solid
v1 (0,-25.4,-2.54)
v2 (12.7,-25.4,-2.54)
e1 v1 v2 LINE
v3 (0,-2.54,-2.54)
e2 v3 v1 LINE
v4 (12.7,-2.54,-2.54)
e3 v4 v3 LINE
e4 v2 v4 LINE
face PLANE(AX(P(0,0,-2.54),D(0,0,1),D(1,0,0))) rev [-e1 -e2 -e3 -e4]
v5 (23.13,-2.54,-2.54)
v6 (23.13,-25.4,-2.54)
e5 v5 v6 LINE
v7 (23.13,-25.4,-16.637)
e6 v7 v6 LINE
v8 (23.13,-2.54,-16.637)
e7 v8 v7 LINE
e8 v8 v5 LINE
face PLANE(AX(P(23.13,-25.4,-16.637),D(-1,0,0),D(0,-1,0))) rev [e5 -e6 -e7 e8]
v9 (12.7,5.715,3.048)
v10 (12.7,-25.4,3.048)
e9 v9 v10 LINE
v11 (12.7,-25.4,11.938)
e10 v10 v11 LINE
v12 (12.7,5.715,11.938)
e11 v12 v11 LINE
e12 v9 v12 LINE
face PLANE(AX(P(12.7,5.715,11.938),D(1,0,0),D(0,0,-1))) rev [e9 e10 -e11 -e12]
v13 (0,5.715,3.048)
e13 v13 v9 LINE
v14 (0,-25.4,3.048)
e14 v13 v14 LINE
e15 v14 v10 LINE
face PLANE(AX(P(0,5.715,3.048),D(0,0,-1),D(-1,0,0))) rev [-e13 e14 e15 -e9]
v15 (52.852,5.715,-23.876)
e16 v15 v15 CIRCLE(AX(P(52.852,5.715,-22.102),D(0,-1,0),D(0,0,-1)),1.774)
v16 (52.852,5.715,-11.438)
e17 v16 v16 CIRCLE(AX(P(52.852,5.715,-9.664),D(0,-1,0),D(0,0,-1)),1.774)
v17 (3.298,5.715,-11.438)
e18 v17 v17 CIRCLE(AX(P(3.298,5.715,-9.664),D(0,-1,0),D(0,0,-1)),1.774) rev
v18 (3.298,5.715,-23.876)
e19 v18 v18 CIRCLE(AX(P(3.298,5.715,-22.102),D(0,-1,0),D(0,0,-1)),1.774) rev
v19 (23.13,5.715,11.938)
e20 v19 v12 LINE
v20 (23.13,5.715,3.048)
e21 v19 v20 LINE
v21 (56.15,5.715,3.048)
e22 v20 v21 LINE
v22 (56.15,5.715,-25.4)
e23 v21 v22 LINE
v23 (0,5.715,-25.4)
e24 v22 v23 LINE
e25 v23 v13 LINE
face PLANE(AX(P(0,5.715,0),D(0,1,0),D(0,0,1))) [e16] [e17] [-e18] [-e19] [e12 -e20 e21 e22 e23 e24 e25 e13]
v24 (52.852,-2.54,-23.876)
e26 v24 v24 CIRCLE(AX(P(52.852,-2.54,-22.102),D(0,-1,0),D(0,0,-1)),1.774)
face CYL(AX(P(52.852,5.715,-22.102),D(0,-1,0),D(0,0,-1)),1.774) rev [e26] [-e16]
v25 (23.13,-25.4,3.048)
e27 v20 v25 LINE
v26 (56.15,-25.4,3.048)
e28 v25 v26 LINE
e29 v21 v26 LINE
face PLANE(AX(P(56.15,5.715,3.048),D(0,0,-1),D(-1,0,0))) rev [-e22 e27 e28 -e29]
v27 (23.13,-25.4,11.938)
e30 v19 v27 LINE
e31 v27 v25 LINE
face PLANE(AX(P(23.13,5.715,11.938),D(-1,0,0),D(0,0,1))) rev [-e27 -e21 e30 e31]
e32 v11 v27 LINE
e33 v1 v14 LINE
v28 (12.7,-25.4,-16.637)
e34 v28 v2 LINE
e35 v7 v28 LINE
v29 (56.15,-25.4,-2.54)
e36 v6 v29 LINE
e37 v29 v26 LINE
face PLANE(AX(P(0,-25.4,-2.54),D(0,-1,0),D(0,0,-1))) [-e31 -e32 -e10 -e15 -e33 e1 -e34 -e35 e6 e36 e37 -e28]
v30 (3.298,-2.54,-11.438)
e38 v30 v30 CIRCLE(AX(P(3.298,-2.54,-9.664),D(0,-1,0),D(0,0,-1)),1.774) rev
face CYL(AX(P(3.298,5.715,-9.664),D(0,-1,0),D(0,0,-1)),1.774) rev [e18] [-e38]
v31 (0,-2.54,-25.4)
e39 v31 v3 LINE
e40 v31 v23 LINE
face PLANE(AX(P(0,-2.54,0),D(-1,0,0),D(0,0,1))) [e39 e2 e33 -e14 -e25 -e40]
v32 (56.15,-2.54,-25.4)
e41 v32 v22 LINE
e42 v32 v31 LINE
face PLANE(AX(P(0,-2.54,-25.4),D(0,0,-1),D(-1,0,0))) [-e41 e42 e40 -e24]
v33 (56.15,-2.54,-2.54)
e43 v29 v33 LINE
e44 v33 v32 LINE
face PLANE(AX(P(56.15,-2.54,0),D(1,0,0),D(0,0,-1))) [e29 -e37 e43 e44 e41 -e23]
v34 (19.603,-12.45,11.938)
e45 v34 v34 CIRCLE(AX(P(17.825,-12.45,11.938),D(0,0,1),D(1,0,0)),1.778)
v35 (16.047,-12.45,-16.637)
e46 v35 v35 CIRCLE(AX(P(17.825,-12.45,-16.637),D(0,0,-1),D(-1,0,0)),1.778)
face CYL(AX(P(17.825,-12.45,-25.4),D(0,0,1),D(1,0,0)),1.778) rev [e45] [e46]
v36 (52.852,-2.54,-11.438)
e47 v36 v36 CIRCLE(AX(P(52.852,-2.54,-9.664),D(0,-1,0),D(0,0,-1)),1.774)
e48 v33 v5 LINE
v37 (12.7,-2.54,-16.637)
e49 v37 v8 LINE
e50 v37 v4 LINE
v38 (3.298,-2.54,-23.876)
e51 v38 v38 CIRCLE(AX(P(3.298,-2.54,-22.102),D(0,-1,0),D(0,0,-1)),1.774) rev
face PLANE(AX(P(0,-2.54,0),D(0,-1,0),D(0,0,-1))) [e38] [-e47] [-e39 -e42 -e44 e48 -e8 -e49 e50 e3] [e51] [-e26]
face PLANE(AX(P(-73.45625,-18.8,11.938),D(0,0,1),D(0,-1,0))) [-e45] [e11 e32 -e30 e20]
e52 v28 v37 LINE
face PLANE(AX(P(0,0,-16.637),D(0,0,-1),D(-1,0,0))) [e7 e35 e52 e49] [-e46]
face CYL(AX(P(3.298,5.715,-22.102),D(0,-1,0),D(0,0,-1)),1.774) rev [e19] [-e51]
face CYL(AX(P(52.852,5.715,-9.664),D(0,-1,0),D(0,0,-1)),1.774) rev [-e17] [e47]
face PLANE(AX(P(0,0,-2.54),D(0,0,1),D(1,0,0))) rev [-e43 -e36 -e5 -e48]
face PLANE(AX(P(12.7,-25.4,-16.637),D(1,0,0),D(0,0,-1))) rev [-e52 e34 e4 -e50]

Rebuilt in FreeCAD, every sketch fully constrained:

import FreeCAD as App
import Part
import Sketcher
from FreeCAD import Vector
Q = App.Units.Quantity

doc = App.newDocument("Part")
params = doc.addObject("Spreadsheet::Sheet", "Params")
for row, (alias, value) in enumerate([
    ("sketch1_height", "1 in"),
    ("pad1_length", "0.1 in"),
    ("sketch2_height", "1 in"),
    ("pad2_length", "0.1 in"),
    ("sketch3_height", "1 in"),
    ("pad3_length", "0.225 in"),
    ("sketch5_height", "1.225 in"),
    ("pad4_length", "0.47 in"),
    ("sketch6_width", "0.5 in"),
    ("sketch6_width2", "1.3 in"),
    ("sketch6_height", "0.35 in"),
    ("sketch7_height", "0.9 in"),
    ("pad5_length", "0.555 in"),
    ("sketch8_diameter", "0.14 in"),
], start=1):
    params.set(f"A{row}", alias)
    params.set(f"B{row}", "=" + value)
    params.setAlias(f"B{row}", alias)

body = doc.addObject("PartDesign::Body", "Body")

sketch1 = body.newObject("Sketcher::SketchObject", "Sketch")
sketch1.AttachmentSupport = (doc.getObject("XZ_Plane"), [""])
sketch1.MapMode = "FlatFace"
sketch1.addGeometry([
    Part.LineSegment(Vector(0, -25, 0), Vector(0, 0, 0)),
    Part.LineSegment(Vector(0, 0, 0), Vector(56, 0, 0)),
    Part.LineSegment(Vector(56, 0, 0), Vector(56, -25, 0)),
    Part.LineSegment(Vector(56, -25, 0), Vector(0, -25, 0)),
], False)
sketch1.addConstraint([
    Sketcher.Constraint("Coincident", 0, 2, 1, 1),
    Sketcher.Constraint("Coincident", 1, 2, 2, 1),
    Sketcher.Constraint("Coincident", 2, 2, 3, 1),
    Sketcher.Constraint("Coincident", 3, 2, 0, 1),
    Sketcher.Constraint("Vertical", 0),
    Sketcher.Constraint("Horizontal", 1),
    Sketcher.Constraint("Vertical", 2),
    Sketcher.Constraint("Horizontal", 3),
    Sketcher.Constraint("Coincident", 0, 2, -1, 1),
    Sketcher.Constraint("DistanceY", 0, 1, 0, 2, Q("1 in")),
    Sketcher.Constraint("DistanceX", 1, 1, 1, 2, 56.15),
])
sketch1.setExpression("Constraints[9]", "Params.sketch1_height")
pad1 = body.newObject("PartDesign::Pad", "Pad")
pad1.Profile = sketch1
pad1.setExpression("Length", "Params.pad1_length")

sketch2 = body.newObject("Sketcher::SketchObject", "Sketch001")
sketch2.AttachmentSupport = (doc.getObject("XY_Plane"), [""])
sketch2.MapMode = "FlatFace"
sketch2.addGeometry([
    Part.LineSegment(Vector(0, 0, 0), Vector(0, -25, 0)),
    Part.LineSegment(Vector(0, -25, 0), Vector(56, -25, 0)),
    Part.LineSegment(Vector(56, -25, 0), Vector(56, 0, 0)),
    Part.LineSegment(Vector(56, 0, 0), Vector(0, 0, 0)),
], False)
sketch2.addConstraint([
    Sketcher.Constraint("Coincident", 0, 2, 1, 1),
    Sketcher.Constraint("Coincident", 1, 2, 2, 1),
    Sketcher.Constraint("Coincident", 2, 2, 3, 1),
    Sketcher.Constraint("Coincident", 3, 2, 0, 1),
    Sketcher.Constraint("Vertical", 0),
    Sketcher.Constraint("Horizontal", 1),
    Sketcher.Constraint("Vertical", 2),
    Sketcher.Constraint("Horizontal", 3),
    Sketcher.Constraint("Coincident", 3, 2, -1, 1),
    Sketcher.Constraint("DistanceY", 0, 2, 0, 1, Q("1 in")),
    Sketcher.Constraint("DistanceX", 1, 1, 1, 2, 56.15),
])
sketch2.setExpression("Constraints[9]", "Params.sketch2_height")
pad2 = body.newObject("PartDesign::Pad", "Pad001")
pad2.Profile = sketch2
pad2.setExpression("Length", "Params.pad2_length")
pad2.Reversed = True

sketch3 = body.newObject("Sketcher::SketchObject", "Sketch002")
sketch3.AttachmentSupport = (doc.getObject("XZ_Plane"), [""])
sketch3.MapMode = "FlatFace"
sketch3.addGeometry([
    Part.LineSegment(Vector(0, -25, 0), Vector(0, 0, 0)),
    Part.LineSegment(Vector(0, 0, 0), Vector(56, 0, 0)),
    Part.LineSegment(Vector(56, 0, 0), Vector(56, -25, 0)),
    Part.LineSegment(Vector(56, -25, 0), Vector(0, -25, 0)),
], False)
sketch3.addConstraint([
    Sketcher.Constraint("Coincident", 0, 2, 1, 1),
    Sketcher.Constraint("Coincident", 1, 2, 2, 1),
    Sketcher.Constraint("Coincident", 2, 2, 3, 1),
    Sketcher.Constraint("Coincident", 3, 2, 0, 1),
    Sketcher.Constraint("Vertical", 0),
    Sketcher.Constraint("Horizontal", 1),
    Sketcher.Constraint("Vertical", 2),
    Sketcher.Constraint("Horizontal", 3),
    Sketcher.Constraint("Coincident", 0, 2, -1, 1),
    Sketcher.Constraint("DistanceY", 0, 1, 0, 2, Q("1 in")),
    Sketcher.Constraint("DistanceX", 1, 1, 1, 2, 56.15),
])
sketch3.setExpression("Constraints[9]", "Params.sketch3_height")
pad3 = body.newObject("PartDesign::Pad", "Pad002")
pad3.Profile = sketch3
pad3.setExpression("Length", "Params.pad3_length")
pad3.Reversed = True

sketch4 = body.newObject("Sketcher::SketchObject", "Sketch003")
sketch4.AttachmentSupport = (doc.getObject("XZ_Plane"), [""])
sketch4.MapMode = "FlatFace"
sketch4.AttachmentOffset = App.Placement(Vector(0, 0, 0.1 * 25.4), App.Rotation())
sketch4.addGeometry([
    Part.Circle(Vector(52.9, -22.1, 0), Vector(0, 0, 1), 1.8),
    Part.Circle(Vector(52.9, -9.7, 0), Vector(0, 0, 1), 1.8),
    Part.Circle(Vector(3.3, -9.7, 0), Vector(0, 0, 1), 1.8),
    Part.Circle(Vector(3.3, -22.1, 0), Vector(0, 0, 1), 1.8),
], False)
sketch4.addConstraint([
    Sketcher.Constraint("Equal", 0, 1),
    Sketcher.Constraint("Equal", 1, 2),
    Sketcher.Constraint("Equal", 2, 3),
    Sketcher.Constraint("Horizontal", 1, 3, 2, 3),
    Sketcher.Constraint("Horizontal", 0, 3, 3, 3),
    Sketcher.Constraint("Vertical", 0, 3, 1, 3),
    Sketcher.Constraint("Vertical", 2, 3, 3, 3),
    Sketcher.Constraint("Diameter", 0, 3.548),
    Sketcher.Constraint("DistanceX", -1, 1, 0, 3, 52.852),
    Sketcher.Constraint("DistanceY", 0, 3, -1, 1, 22.102),
    Sketcher.Constraint("DistanceY", 1, 3, -1, 1, 9.664),
    Sketcher.Constraint("DistanceX", -1, 1, 2, 3, 3.298),
])
pocket1 = body.newObject("PartDesign::Pocket", "Pocket")
pocket1.Profile = sketch4
pocket1.Type = "ThroughAll"

sketch5 = body.newObject("Sketcher::SketchObject", "Sketch004")
sketch5.AttachmentSupport = (doc.getObject("XY_Plane"), [""])
sketch5.MapMode = "FlatFace"
sketch5.addGeometry([
    Part.LineSegment(Vector(0, 6, 0), Vector(0, -25, 0)),
    Part.LineSegment(Vector(0, -25, 0), Vector(56, -25, 0)),
    Part.LineSegment(Vector(56, -25, 0), Vector(56, 6, 0)),
    Part.LineSegment(Vector(56, 6, 0), Vector(0, 6, 0)),
], False)
sketch5.addConstraint([
    Sketcher.Constraint("Coincident", 0, 2, 1, 1),
    Sketcher.Constraint("Coincident", 1, 2, 2, 1),
    Sketcher.Constraint("Coincident", 2, 2, 3, 1),
    Sketcher.Constraint("Coincident", 3, 2, 0, 1),
    Sketcher.Constraint("Vertical", 0),
    Sketcher.Constraint("Horizontal", 1),
    Sketcher.Constraint("Vertical", 2),
    Sketcher.Constraint("Horizontal", 3),
    Sketcher.Constraint("PointOnObject", 0, 2, -2),
    Sketcher.Constraint("DistanceY", 0, 2, -1, 1, Q("1 in")),
    Sketcher.Constraint("DistanceY", 0, 2, 0, 1, Q("1.225 in")),
    Sketcher.Constraint("DistanceX", 1, 1, 1, 2, 56.15),
])
sketch5.setExpression("Constraints[10]", "Params.sketch5_height")
pad4 = body.newObject("PartDesign::Pad", "Pad003")
pad4.Profile = sketch5
pad4.setExpression("Length", "Params.pad4_length")

sketch6 = body.newObject("Sketcher::SketchObject", "Sketch005")
sketch6.AttachmentSupport = (doc.getObject("XZ_Plane"), [""])
sketch6.MapMode = "FlatFace"
sketch6.AttachmentOffset = App.Placement(Vector(0, 0, 1 * 25.4), App.Rotation())
sketch6.addGeometry([
    Part.LineSegment(Vector(0, 12, 0), Vector(0, 3, 0)),
    Part.LineSegment(Vector(0, 3, 0), Vector(13, 3, 0)),
    Part.LineSegment(Vector(13, 3, 0), Vector(13, 12, 0)),
    Part.LineSegment(Vector(13, 12, 0), Vector(0, 12, 0)),
    Part.LineSegment(Vector(23, 12, 0), Vector(23, 3, 0)),
    Part.LineSegment(Vector(23, 3, 0), Vector(56, 3, 0)),
    Part.LineSegment(Vector(56, 3, 0), Vector(56, 12, 0)),
    Part.LineSegment(Vector(56, 12, 0), Vector(23, 12, 0)),
], False)
sketch6.addConstraint([
    Sketcher.Constraint("Coincident", 0, 2, 1, 1),
    Sketcher.Constraint("Coincident", 1, 2, 2, 1),
    Sketcher.Constraint("Coincident", 2, 2, 3, 1),
    Sketcher.Constraint("Coincident", 3, 2, 0, 1),
    Sketcher.Constraint("Coincident", 4, 2, 5, 1),
    Sketcher.Constraint("Coincident", 5, 2, 6, 1),
    Sketcher.Constraint("Coincident", 6, 2, 7, 1),
    Sketcher.Constraint("Coincident", 7, 2, 4, 1),
    Sketcher.Constraint("Vertical", 0),
    Sketcher.Constraint("Horizontal", 1),
    Sketcher.Constraint("Vertical", 2),
    Sketcher.Constraint("Horizontal", 3),
    Sketcher.Constraint("Vertical", 4),
    Sketcher.Constraint("Horizontal", 5),
    Sketcher.Constraint("Vertical", 6),
    Sketcher.Constraint("Horizontal", 7),
    Sketcher.Constraint("PointOnObject", 0, 2, -2),
    Sketcher.Constraint("Horizontal", 1, 2, 4, 2),
    Sketcher.Constraint("Horizontal", 3, 2, 6, 2),
    Sketcher.Constraint("DistanceX", 1, 1, 1, 2, Q("0.5 in")),
    Sketcher.Constraint("DistanceX", 5, 1, 5, 2, Q("1.3 in")),
    Sketcher.Constraint("DistanceY", 0, 2, 0, 1, Q("0.35 in")),
    Sketcher.Constraint("DistanceY", -1, 1, 0, 2, Q("0.12 in")),
    Sketcher.Constraint("DistanceX", -1, 1, 4, 2, 23.13),
])
sketch6.setExpression("Constraints[19]", "Params.sketch6_width")
sketch6.setExpression("Constraints[20]", "Params.sketch6_width2")
sketch6.setExpression("Constraints[21]", "Params.sketch6_height")
pocket2 = body.newObject("PartDesign::Pocket", "Pocket001")
pocket2.Profile = sketch6
pocket2.Type = "ThroughAll"

sketch7 = body.newObject("Sketcher::SketchObject", "Sketch006")
sketch7.AttachmentSupport = (doc.getObject("XY_Plane"), [""])
sketch7.MapMode = "FlatFace"
sketch7.AttachmentOffset = App.Placement(Vector(0, 0, -0.1 * 25.4), App.Rotation())
sketch7.addGeometry([
    Part.LineSegment(Vector(23, -3, 0), Vector(23, -25, 0)),
    Part.LineSegment(Vector(23, -25, 0), Vector(13, -25, 0)),
    Part.LineSegment(Vector(13, -25, 0), Vector(13, -3, 0)),
    Part.LineSegment(Vector(13, -3, 0), Vector(23, -3, 0)),
], False)
sketch7.addConstraint([
    Sketcher.Constraint("Coincident", 0, 2, 1, 1),
    Sketcher.Constraint("Coincident", 1, 2, 2, 1),
    Sketcher.Constraint("Coincident", 2, 2, 3, 1),
    Sketcher.Constraint("Coincident", 3, 2, 0, 1),
    Sketcher.Constraint("Vertical", 0),
    Sketcher.Constraint("Horizontal", 1),
    Sketcher.Constraint("Vertical", 2),
    Sketcher.Constraint("Horizontal", 3),
    Sketcher.Constraint("DistanceY", 0, 2, 0, 1, Q("0.9 in")),
    Sketcher.Constraint("DistanceY", 0, 2, -1, 1, Q("1 in")),
    Sketcher.Constraint("DistanceX", -1, 1, 1, 2, Q("0.5 in")),
    Sketcher.Constraint("DistanceX", 1, 2, 1, 1, 10.43),
])
sketch7.setExpression("Constraints[8]", "Params.sketch7_height")
pad5 = body.newObject("PartDesign::Pad", "Pad004")
pad5.Profile = sketch7
pad5.setExpression("Length", "Params.pad5_length")
pad5.Reversed = True

sketch8 = body.newObject("Sketcher::SketchObject", "Sketch007")
sketch8.AttachmentSupport = (doc.getObject("XY_Plane"), [""])
sketch8.MapMode = "FlatFace"
sketch8.AttachmentOffset = App.Placement(Vector(0, 0, 0.47 * 25.4), App.Rotation())
sketch8.addGeometry(Part.Circle(Vector(17.8, -12.4, 0), Vector(0, 0, 1), 1.8), False)
sketch8.addConstraint([
    Sketcher.Constraint("Diameter", 0, Q("0.14 in")),
    Sketcher.Constraint("DistanceX", -1, 1, 0, 3, 17.825),
    Sketcher.Constraint("DistanceY", 0, 3, -1, 1, 12.45),
])
sketch8.setExpression("Constraints[0]", "Params.sketch8_diameter")
pocket3 = body.newObject("PartDesign::Pocket", "Pocket002")
pocket3.Profile = sketch8
pocket3.Type = "ThroughAll"

doc.recompute()
